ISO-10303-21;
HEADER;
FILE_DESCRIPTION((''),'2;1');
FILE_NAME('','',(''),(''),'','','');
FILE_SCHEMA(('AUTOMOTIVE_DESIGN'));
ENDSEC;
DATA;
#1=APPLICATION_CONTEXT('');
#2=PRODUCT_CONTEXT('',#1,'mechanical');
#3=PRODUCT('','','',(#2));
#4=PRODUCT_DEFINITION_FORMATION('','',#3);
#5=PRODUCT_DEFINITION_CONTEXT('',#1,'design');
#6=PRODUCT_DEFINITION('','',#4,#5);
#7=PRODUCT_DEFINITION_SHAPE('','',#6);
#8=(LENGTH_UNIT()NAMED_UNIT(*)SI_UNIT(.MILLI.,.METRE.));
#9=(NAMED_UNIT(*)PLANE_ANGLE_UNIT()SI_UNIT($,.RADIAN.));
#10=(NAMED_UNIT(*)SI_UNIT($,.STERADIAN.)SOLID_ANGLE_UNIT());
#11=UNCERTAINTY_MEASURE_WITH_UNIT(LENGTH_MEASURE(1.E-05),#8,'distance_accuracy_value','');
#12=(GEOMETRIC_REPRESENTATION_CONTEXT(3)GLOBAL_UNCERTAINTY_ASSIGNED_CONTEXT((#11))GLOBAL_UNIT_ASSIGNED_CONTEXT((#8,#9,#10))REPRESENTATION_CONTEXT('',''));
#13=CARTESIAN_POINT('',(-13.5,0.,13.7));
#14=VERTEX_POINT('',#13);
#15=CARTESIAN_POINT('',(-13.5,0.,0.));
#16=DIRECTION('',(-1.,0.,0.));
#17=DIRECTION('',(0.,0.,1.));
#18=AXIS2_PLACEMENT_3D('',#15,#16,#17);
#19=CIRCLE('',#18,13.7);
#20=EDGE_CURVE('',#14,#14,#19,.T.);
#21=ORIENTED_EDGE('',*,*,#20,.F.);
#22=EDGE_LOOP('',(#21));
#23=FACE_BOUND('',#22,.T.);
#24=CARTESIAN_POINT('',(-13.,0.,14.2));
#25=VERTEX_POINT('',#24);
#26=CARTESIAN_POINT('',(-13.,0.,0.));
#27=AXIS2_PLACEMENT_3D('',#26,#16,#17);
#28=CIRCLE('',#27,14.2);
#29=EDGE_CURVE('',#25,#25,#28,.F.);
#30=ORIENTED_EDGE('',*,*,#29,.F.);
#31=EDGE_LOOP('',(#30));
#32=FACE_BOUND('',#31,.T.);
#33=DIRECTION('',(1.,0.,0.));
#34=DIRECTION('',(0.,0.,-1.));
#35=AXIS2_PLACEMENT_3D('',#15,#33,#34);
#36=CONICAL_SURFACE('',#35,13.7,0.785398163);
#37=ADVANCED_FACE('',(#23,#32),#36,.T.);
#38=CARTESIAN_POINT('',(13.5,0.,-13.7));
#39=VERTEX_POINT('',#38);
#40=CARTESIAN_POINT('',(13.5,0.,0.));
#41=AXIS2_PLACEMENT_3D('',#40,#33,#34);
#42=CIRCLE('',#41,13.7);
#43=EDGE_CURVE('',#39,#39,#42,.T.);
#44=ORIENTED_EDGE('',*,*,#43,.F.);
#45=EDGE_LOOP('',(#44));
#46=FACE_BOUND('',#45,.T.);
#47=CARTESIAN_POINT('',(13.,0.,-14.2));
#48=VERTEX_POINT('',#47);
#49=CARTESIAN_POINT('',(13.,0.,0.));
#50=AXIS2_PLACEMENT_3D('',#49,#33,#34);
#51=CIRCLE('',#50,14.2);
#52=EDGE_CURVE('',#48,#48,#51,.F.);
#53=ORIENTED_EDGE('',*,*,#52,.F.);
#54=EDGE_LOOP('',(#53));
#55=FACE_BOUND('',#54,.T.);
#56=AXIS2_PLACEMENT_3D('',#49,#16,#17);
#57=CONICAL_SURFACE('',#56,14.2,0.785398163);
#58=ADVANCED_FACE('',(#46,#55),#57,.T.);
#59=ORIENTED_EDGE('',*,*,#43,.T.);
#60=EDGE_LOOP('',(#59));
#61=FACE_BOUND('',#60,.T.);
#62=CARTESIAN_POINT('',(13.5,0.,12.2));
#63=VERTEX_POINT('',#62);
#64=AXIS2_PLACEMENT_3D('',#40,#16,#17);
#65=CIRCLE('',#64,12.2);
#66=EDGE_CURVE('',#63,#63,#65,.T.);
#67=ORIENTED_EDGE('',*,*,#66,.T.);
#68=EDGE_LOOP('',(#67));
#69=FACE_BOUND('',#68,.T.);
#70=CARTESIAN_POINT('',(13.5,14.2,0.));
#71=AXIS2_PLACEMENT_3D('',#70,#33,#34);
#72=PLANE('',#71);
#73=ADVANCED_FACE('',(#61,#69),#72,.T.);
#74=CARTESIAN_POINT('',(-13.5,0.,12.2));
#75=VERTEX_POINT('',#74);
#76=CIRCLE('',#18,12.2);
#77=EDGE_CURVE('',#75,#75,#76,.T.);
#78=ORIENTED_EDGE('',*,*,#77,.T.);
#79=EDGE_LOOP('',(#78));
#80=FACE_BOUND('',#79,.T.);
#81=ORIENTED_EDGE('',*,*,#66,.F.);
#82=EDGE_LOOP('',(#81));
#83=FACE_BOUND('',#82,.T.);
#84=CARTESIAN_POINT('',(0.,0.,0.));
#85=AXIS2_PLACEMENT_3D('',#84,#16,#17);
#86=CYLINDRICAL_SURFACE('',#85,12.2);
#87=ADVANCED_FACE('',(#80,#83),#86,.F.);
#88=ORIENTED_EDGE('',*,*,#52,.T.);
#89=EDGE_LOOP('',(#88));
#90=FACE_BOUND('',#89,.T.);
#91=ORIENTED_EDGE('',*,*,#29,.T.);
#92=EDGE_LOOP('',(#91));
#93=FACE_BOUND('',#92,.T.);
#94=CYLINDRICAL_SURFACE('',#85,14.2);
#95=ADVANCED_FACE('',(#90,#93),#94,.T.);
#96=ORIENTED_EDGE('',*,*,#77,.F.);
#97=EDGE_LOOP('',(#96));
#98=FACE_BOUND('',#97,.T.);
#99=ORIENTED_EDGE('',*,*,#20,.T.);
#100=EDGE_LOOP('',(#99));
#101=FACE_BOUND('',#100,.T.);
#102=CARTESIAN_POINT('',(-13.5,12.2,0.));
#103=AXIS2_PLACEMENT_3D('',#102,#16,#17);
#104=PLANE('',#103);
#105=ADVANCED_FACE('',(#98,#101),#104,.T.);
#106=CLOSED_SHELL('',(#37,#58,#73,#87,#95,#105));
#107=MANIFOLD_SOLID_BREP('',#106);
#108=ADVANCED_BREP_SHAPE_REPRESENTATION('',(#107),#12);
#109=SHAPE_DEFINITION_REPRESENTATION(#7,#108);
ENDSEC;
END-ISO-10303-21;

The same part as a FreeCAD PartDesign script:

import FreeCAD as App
import Part
import Sketcher


def edges_at(feature, points):
    """Names of the edges that pass closest to the given points."""
    edges = feature.Shape.Edges
    near = lambda p: min(range(len(edges)), key=lambda i: edges[i].distToShape(Part.Vertex(*p))[0])
    return sorted({f"Edge{near(p) + 1}" for p in points})

doc = App.newDocument("Part")
body = doc.addObject("PartDesign::Body", "Body")

# Sketch on XY plane
sketch1 = body.newObject("Sketcher::SketchObject", "Sketch")
sketch1.AttachmentSupport = (doc.getObject("XY_Plane"), [""])
sketch1.MapMode = "FlatFace"
sketch1.addGeometry([
    Part.LineSegment(App.Vector(-13.5, 14.2, 0), App.Vector(-13.5, 12.2, 0)),
    Part.LineSegment(App.Vector(-13.5, 12.2, 0), App.Vector(13.5, 12.2, 0)),
    Part.LineSegment(App.Vector(13.5, 12.2, 0), App.Vector(13.5, 14.2, 0)),
    Part.LineSegment(App.Vector(13.5, 14.2, 0), App.Vector(-13.5, 14.2, 0)),
], False)
sketch1.addConstraint([
    Sketcher.Constraint("Coincident", 0, 2, 1, 1),
    Sketcher.Constraint("Coincident", 1, 2, 2, 1),
    Sketcher.Constraint("Coincident", 2, 2, 3, 1),
    Sketcher.Constraint("Coincident", 3, 2, 0, 1),
    Sketcher.Constraint("Vertical", 0),
    Sketcher.Constraint("Horizontal", 1),
    Sketcher.Constraint("Vertical", 2),
    Sketcher.Constraint("Horizontal", 3),
    Sketcher.Constraint("DistanceX", 1, 1, 1, 2, 27.0),
    Sketcher.Constraint("DistanceY", 0, 2, 0, 1, 2.0),
    Sketcher.Constraint("DistanceX", 0, 2, -1, 1, 13.5),
    Sketcher.Constraint("DistanceY", -1, 1, 0, 2, 12.2),
])
revolution = body.newObject("PartDesign::Revolution", "Revolution")
revolution.Profile = sketch1
revolution.ReferenceAxis = (sketch1, ["H_Axis"])
revolution.Angle = 360
doc.recompute()

chamfer = body.newObject("PartDesign::Chamfer", "Chamfer")
chamfer.Base = (revolution, edges_at(revolution, [(-13.5, 0, -14.2), (13.5, 0, -14.2)]))
chamfer.Size = 0.5

doc.recompute()
